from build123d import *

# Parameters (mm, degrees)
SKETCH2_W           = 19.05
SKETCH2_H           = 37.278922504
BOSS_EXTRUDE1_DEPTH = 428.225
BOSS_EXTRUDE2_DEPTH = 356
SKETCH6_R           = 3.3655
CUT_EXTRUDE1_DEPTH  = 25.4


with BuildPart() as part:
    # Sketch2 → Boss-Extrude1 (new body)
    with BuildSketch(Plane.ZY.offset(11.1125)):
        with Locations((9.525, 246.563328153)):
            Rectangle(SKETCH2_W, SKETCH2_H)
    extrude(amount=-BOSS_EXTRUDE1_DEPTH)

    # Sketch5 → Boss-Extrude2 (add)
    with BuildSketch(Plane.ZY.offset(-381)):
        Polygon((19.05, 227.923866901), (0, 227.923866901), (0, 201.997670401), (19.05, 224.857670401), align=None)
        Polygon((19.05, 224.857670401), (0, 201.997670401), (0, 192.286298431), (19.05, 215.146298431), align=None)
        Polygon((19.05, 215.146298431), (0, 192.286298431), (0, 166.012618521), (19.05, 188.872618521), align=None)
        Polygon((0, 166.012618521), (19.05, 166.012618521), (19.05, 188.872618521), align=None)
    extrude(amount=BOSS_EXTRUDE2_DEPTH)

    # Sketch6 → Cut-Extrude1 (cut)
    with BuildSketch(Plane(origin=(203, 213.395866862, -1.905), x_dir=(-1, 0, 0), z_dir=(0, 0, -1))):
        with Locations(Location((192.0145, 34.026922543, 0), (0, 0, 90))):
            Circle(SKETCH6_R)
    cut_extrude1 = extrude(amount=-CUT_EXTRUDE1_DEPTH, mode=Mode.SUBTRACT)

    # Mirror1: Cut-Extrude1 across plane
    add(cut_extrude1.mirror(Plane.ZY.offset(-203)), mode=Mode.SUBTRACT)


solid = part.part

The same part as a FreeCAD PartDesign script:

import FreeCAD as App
import Part
import Sketcher

V = App.Vector
Q = App.Units.Quantity

doc = App.newDocument("Part")
body = doc.addObject("PartDesign::Body", "Body")

# Sketch on YZ plane
sketch1 = body.newObject("Sketcher::SketchObject", "Sketch")
sketch1.AttachmentSupport = (doc.getObject("YZ_Plane"), [""])
sketch1.MapMode = "FlatFace"
sketch1.AttachmentOffset = App.Placement(V(0, 0, -0.4375 * 25.4), App.Rotation())
sketch1.addGeometry([
    Part.LineSegment(V(265.202789, 0, 0), V(227.923867, 0, 0)),
    Part.LineSegment(V(227.923867, 0, 0), V(227.923867, 19.05, 0)),
    Part.LineSegment(V(227.923867, 19.05, 0), V(265.202789, 19.05, 0)),
    Part.LineSegment(V(265.202789, 19.05, 0), V(265.202789, 0, 0)),
], False)
sketch1.addConstraint([
    Sketcher.Constraint("Coincident", 0, 2, 1, 1),
    Sketcher.Constraint("Coincident", 1, 2, 2, 1),
    Sketcher.Constraint("Coincident", 2, 2, 3, 1),
    Sketcher.Constraint("Coincident", 3, 2, 0, 1),
    Sketcher.Constraint("Horizontal", 0),
    Sketcher.Constraint("Vertical", 1),
    Sketcher.Constraint("Horizontal", 2),
    Sketcher.Constraint("Vertical", 3),
    Sketcher.Constraint("PointOnObject", 0, 2, -1),
    Sketcher.Constraint("DistanceY", 1, 1, 1, 2, Q("0.75 in")),
    Sketcher.Constraint("DistanceX", 0, 2, 0, 1, Q("37.278923 mm")),
    Sketcher.Constraint("DistanceX", -1, 1, 2, 2, Q("265.202789 mm")),
])
pad1 = body.newObject("PartDesign::Pad", "Pad")
pad1.Profile = sketch1
pad1.Length = 428.225

# Sketch on YZ plane
sketch2 = body.newObject("Sketcher::SketchObject", "Sketch001")
sketch2.AttachmentSupport = (doc.getObject("YZ_Plane"), [""])
sketch2.MapMode = "FlatFace"
sketch2.AttachmentOffset = App.Placement(V(0, 0, 15 * 25.4), App.Rotation())
sketch2.addGeometry([
    Part.LineSegment(V(227.923867, 19.05, 0), V(227.923867, 0, 0)),
    Part.LineSegment(V(227.923867, 0, 0), V(166.012619, 0, 0)),
    Part.LineSegment(V(166.012619, 0, 0), V(166.012619, 19.05, 0)),
    Part.LineSegment(V(166.012619, 19.05, 0), V(227.923867, 19.05, 0)),
], False)
sketch2.addConstraint([
    Sketcher.Constraint("Coincident", 0, 2, 1, 1),
    Sketcher.Constraint("Coincident", 1, 2, 2, 1),
    Sketcher.Constraint("Coincident", 2, 2, 3, 1),
    Sketcher.Constraint("Coincident", 3, 2, 0, 1),
    Sketcher.Constraint("Vertical", 0),
    Sketcher.Constraint("Horizontal", 1),
    Sketcher.Constraint("Vertical", 2),
    Sketcher.Constraint("Horizontal", 3),
    Sketcher.Constraint("PointOnObject", 0, 2, -1),
    Sketcher.Constraint("DistanceY", 0, 2, 0, 1, Q("0.75 in")),
    Sketcher.Constraint("DistanceX", 1, 2, 1, 1, Q("61.911248 mm")),
    Sketcher.Constraint("DistanceX", -1, 1, 1, 2, Q("166.012619 mm")),
])
pad2 = body.newObject("PartDesign::Pad", "Pad001")
pad2.Profile = sketch2
pad2.Length = 356
pad2.Reversed = True

# Sketch on XY plane
sketch3 = body.newObject("Sketcher::SketchObject", "Sketch002")
sketch3.AttachmentSupport = (doc.getObject("XY_Plane"), [""])
sketch3.MapMode = "FlatFace"
sketch3.AttachmentOffset = App.Placement(V(0, 0, -0.075 * 25.4), App.Rotation())
sketch3.addGeometry(Part.Circle(V(10.9855, 247.422789, 0), V(0, 0, 1), 3.3655), False)
sketch3.addConstraint([
    Sketcher.Constraint("Diameter", 0, Q("0.265 in")),
    Sketcher.Constraint("DistanceX", -1, 1, 0, 3, Q("0.4325 in")),
    Sketcher.Constraint("DistanceY", -1, 1, 0, 3, Q("247.422789 mm")),
])
pocket1 = body.newObject("PartDesign::Pocket", "Pocket")
pocket1.Profile = sketch3
pocket1.Length = Q("1 in")
pocket1.Reversed = True
doc.recompute()

datumplane = body.newObject("PartDesign::Plane", "DatumPlane")
datumplane.AttachmentSupport = (doc.getObject("YZ_Plane"), [""])
datumplane.MapMode = "FlatFace"
datumplane.AttachmentOffset = App.Placement(V(0, 0, 203), App.Rotation())
mirrored = body.newObject("PartDesign::Mirrored", "Mirrored")
mirrored.Originals = [pocket1]
mirrored.MirrorPlane = (datumplane, [""])
body.Tip = mirrored

doc.recompute()
